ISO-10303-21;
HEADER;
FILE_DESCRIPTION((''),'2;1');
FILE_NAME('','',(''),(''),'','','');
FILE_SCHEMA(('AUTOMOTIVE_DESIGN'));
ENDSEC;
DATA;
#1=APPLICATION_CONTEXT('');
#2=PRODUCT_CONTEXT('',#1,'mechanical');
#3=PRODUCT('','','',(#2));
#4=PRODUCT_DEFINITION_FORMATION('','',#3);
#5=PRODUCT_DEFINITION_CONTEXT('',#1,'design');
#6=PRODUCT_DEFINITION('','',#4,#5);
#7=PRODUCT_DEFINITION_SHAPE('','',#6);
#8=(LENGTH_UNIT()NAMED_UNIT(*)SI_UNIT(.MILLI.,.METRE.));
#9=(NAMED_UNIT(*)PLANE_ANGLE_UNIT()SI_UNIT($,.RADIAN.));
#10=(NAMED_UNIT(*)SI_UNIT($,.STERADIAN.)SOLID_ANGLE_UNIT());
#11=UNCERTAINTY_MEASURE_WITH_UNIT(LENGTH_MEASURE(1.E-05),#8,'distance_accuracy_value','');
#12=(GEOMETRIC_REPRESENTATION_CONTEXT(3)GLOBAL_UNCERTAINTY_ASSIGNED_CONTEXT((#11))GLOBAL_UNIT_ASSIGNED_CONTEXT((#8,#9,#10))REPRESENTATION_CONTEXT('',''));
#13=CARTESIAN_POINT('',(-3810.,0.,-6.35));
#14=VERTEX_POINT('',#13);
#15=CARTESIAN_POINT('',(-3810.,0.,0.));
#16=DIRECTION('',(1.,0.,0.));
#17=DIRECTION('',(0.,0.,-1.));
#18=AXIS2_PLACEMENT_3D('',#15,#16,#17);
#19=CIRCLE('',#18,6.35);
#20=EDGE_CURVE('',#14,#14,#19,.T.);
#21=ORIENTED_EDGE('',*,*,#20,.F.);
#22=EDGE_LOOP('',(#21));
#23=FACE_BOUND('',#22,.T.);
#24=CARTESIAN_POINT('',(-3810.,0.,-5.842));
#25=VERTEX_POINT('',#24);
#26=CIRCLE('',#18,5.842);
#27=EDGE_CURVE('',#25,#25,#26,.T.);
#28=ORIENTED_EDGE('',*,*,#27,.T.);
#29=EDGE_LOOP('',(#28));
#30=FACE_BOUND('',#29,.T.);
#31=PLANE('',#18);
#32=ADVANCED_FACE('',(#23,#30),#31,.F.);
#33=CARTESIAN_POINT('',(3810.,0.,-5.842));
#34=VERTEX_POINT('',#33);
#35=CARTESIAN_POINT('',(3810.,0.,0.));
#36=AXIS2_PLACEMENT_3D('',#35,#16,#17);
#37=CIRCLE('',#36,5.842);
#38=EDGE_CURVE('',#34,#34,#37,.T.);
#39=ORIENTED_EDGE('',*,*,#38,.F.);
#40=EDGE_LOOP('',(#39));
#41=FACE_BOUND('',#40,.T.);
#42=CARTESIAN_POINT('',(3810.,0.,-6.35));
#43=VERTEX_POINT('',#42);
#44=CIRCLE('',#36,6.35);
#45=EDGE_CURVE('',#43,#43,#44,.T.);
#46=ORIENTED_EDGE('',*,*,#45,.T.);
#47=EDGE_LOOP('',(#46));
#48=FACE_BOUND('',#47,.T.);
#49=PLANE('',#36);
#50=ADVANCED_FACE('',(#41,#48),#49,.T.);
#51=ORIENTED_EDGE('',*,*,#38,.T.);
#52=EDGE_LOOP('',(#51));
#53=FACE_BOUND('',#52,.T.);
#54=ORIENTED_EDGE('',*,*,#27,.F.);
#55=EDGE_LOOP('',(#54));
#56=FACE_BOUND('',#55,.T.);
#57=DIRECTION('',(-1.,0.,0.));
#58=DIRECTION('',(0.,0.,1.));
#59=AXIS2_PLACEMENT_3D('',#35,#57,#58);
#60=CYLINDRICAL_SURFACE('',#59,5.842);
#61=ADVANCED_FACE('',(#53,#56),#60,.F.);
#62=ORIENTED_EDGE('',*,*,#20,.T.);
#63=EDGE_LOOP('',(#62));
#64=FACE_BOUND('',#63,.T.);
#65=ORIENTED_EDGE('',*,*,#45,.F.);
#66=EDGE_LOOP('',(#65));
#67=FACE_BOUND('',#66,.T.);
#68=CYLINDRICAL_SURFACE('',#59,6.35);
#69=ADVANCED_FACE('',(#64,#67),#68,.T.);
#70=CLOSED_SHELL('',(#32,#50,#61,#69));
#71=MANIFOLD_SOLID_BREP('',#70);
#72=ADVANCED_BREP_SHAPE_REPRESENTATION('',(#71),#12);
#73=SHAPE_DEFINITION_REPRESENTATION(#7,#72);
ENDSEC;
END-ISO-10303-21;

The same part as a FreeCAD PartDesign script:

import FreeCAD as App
import Part
import Sketcher

V = App.Vector
Q = App.Units.Quantity

doc = App.newDocument("Part")
params = doc.addObject("Spreadsheet::Sheet", "Params")
for row, (alias, value) in enumerate([
    ("sketch1_diameter", "0.5 in"),
    ("sketch1_diameter2", "0.46 in"),
    ("pad1_length", "300 in"),
], start=1):
    params.set(f"A{row}", alias)
    params.set(f"B{row}", "=" + value)
    params.setAlias(f"B{row}", alias)

body = doc.addObject("PartDesign::Body", "Body")

sketch1 = doc.addObject("Sketcher::SketchObject", "Sketch")
body.addObject(sketch1)
sketch1.AttachmentSupport = (doc.YZ_Plane, [""])
sketch1.MapMode = "FlatFace"
sketch1.addGeometry([
    Part.Circle(V(0, 0, 0), V(0, 0, 1), 6),
    Part.Circle(V(0, 0, 0), V(0, 0, 1), 6),
], False)
sketch1.addConstraint([
    Sketcher.Constraint("Coincident", 0, 3, -1, 1),
    Sketcher.Constraint("Coincident", 1, 3, -1, 1),
    Sketcher.Constraint("Diameter", 0, Q("0.5 in")),
    Sketcher.Constraint("Diameter", 1, Q("0.46 in")),
])
sketch1.setExpression("Constraints[2]", "Params.sketch1_diameter")
sketch1.setExpression("Constraints[3]", "Params.sketch1_diameter2")
pad1 = doc.addObject("PartDesign::Pad", "Pad")
body.addObject(pad1)
pad1.Profile = sketch1
pad1.setExpression("Length", "Params.pad1_length")
pad1.Midplane = True

doc.recompute()
